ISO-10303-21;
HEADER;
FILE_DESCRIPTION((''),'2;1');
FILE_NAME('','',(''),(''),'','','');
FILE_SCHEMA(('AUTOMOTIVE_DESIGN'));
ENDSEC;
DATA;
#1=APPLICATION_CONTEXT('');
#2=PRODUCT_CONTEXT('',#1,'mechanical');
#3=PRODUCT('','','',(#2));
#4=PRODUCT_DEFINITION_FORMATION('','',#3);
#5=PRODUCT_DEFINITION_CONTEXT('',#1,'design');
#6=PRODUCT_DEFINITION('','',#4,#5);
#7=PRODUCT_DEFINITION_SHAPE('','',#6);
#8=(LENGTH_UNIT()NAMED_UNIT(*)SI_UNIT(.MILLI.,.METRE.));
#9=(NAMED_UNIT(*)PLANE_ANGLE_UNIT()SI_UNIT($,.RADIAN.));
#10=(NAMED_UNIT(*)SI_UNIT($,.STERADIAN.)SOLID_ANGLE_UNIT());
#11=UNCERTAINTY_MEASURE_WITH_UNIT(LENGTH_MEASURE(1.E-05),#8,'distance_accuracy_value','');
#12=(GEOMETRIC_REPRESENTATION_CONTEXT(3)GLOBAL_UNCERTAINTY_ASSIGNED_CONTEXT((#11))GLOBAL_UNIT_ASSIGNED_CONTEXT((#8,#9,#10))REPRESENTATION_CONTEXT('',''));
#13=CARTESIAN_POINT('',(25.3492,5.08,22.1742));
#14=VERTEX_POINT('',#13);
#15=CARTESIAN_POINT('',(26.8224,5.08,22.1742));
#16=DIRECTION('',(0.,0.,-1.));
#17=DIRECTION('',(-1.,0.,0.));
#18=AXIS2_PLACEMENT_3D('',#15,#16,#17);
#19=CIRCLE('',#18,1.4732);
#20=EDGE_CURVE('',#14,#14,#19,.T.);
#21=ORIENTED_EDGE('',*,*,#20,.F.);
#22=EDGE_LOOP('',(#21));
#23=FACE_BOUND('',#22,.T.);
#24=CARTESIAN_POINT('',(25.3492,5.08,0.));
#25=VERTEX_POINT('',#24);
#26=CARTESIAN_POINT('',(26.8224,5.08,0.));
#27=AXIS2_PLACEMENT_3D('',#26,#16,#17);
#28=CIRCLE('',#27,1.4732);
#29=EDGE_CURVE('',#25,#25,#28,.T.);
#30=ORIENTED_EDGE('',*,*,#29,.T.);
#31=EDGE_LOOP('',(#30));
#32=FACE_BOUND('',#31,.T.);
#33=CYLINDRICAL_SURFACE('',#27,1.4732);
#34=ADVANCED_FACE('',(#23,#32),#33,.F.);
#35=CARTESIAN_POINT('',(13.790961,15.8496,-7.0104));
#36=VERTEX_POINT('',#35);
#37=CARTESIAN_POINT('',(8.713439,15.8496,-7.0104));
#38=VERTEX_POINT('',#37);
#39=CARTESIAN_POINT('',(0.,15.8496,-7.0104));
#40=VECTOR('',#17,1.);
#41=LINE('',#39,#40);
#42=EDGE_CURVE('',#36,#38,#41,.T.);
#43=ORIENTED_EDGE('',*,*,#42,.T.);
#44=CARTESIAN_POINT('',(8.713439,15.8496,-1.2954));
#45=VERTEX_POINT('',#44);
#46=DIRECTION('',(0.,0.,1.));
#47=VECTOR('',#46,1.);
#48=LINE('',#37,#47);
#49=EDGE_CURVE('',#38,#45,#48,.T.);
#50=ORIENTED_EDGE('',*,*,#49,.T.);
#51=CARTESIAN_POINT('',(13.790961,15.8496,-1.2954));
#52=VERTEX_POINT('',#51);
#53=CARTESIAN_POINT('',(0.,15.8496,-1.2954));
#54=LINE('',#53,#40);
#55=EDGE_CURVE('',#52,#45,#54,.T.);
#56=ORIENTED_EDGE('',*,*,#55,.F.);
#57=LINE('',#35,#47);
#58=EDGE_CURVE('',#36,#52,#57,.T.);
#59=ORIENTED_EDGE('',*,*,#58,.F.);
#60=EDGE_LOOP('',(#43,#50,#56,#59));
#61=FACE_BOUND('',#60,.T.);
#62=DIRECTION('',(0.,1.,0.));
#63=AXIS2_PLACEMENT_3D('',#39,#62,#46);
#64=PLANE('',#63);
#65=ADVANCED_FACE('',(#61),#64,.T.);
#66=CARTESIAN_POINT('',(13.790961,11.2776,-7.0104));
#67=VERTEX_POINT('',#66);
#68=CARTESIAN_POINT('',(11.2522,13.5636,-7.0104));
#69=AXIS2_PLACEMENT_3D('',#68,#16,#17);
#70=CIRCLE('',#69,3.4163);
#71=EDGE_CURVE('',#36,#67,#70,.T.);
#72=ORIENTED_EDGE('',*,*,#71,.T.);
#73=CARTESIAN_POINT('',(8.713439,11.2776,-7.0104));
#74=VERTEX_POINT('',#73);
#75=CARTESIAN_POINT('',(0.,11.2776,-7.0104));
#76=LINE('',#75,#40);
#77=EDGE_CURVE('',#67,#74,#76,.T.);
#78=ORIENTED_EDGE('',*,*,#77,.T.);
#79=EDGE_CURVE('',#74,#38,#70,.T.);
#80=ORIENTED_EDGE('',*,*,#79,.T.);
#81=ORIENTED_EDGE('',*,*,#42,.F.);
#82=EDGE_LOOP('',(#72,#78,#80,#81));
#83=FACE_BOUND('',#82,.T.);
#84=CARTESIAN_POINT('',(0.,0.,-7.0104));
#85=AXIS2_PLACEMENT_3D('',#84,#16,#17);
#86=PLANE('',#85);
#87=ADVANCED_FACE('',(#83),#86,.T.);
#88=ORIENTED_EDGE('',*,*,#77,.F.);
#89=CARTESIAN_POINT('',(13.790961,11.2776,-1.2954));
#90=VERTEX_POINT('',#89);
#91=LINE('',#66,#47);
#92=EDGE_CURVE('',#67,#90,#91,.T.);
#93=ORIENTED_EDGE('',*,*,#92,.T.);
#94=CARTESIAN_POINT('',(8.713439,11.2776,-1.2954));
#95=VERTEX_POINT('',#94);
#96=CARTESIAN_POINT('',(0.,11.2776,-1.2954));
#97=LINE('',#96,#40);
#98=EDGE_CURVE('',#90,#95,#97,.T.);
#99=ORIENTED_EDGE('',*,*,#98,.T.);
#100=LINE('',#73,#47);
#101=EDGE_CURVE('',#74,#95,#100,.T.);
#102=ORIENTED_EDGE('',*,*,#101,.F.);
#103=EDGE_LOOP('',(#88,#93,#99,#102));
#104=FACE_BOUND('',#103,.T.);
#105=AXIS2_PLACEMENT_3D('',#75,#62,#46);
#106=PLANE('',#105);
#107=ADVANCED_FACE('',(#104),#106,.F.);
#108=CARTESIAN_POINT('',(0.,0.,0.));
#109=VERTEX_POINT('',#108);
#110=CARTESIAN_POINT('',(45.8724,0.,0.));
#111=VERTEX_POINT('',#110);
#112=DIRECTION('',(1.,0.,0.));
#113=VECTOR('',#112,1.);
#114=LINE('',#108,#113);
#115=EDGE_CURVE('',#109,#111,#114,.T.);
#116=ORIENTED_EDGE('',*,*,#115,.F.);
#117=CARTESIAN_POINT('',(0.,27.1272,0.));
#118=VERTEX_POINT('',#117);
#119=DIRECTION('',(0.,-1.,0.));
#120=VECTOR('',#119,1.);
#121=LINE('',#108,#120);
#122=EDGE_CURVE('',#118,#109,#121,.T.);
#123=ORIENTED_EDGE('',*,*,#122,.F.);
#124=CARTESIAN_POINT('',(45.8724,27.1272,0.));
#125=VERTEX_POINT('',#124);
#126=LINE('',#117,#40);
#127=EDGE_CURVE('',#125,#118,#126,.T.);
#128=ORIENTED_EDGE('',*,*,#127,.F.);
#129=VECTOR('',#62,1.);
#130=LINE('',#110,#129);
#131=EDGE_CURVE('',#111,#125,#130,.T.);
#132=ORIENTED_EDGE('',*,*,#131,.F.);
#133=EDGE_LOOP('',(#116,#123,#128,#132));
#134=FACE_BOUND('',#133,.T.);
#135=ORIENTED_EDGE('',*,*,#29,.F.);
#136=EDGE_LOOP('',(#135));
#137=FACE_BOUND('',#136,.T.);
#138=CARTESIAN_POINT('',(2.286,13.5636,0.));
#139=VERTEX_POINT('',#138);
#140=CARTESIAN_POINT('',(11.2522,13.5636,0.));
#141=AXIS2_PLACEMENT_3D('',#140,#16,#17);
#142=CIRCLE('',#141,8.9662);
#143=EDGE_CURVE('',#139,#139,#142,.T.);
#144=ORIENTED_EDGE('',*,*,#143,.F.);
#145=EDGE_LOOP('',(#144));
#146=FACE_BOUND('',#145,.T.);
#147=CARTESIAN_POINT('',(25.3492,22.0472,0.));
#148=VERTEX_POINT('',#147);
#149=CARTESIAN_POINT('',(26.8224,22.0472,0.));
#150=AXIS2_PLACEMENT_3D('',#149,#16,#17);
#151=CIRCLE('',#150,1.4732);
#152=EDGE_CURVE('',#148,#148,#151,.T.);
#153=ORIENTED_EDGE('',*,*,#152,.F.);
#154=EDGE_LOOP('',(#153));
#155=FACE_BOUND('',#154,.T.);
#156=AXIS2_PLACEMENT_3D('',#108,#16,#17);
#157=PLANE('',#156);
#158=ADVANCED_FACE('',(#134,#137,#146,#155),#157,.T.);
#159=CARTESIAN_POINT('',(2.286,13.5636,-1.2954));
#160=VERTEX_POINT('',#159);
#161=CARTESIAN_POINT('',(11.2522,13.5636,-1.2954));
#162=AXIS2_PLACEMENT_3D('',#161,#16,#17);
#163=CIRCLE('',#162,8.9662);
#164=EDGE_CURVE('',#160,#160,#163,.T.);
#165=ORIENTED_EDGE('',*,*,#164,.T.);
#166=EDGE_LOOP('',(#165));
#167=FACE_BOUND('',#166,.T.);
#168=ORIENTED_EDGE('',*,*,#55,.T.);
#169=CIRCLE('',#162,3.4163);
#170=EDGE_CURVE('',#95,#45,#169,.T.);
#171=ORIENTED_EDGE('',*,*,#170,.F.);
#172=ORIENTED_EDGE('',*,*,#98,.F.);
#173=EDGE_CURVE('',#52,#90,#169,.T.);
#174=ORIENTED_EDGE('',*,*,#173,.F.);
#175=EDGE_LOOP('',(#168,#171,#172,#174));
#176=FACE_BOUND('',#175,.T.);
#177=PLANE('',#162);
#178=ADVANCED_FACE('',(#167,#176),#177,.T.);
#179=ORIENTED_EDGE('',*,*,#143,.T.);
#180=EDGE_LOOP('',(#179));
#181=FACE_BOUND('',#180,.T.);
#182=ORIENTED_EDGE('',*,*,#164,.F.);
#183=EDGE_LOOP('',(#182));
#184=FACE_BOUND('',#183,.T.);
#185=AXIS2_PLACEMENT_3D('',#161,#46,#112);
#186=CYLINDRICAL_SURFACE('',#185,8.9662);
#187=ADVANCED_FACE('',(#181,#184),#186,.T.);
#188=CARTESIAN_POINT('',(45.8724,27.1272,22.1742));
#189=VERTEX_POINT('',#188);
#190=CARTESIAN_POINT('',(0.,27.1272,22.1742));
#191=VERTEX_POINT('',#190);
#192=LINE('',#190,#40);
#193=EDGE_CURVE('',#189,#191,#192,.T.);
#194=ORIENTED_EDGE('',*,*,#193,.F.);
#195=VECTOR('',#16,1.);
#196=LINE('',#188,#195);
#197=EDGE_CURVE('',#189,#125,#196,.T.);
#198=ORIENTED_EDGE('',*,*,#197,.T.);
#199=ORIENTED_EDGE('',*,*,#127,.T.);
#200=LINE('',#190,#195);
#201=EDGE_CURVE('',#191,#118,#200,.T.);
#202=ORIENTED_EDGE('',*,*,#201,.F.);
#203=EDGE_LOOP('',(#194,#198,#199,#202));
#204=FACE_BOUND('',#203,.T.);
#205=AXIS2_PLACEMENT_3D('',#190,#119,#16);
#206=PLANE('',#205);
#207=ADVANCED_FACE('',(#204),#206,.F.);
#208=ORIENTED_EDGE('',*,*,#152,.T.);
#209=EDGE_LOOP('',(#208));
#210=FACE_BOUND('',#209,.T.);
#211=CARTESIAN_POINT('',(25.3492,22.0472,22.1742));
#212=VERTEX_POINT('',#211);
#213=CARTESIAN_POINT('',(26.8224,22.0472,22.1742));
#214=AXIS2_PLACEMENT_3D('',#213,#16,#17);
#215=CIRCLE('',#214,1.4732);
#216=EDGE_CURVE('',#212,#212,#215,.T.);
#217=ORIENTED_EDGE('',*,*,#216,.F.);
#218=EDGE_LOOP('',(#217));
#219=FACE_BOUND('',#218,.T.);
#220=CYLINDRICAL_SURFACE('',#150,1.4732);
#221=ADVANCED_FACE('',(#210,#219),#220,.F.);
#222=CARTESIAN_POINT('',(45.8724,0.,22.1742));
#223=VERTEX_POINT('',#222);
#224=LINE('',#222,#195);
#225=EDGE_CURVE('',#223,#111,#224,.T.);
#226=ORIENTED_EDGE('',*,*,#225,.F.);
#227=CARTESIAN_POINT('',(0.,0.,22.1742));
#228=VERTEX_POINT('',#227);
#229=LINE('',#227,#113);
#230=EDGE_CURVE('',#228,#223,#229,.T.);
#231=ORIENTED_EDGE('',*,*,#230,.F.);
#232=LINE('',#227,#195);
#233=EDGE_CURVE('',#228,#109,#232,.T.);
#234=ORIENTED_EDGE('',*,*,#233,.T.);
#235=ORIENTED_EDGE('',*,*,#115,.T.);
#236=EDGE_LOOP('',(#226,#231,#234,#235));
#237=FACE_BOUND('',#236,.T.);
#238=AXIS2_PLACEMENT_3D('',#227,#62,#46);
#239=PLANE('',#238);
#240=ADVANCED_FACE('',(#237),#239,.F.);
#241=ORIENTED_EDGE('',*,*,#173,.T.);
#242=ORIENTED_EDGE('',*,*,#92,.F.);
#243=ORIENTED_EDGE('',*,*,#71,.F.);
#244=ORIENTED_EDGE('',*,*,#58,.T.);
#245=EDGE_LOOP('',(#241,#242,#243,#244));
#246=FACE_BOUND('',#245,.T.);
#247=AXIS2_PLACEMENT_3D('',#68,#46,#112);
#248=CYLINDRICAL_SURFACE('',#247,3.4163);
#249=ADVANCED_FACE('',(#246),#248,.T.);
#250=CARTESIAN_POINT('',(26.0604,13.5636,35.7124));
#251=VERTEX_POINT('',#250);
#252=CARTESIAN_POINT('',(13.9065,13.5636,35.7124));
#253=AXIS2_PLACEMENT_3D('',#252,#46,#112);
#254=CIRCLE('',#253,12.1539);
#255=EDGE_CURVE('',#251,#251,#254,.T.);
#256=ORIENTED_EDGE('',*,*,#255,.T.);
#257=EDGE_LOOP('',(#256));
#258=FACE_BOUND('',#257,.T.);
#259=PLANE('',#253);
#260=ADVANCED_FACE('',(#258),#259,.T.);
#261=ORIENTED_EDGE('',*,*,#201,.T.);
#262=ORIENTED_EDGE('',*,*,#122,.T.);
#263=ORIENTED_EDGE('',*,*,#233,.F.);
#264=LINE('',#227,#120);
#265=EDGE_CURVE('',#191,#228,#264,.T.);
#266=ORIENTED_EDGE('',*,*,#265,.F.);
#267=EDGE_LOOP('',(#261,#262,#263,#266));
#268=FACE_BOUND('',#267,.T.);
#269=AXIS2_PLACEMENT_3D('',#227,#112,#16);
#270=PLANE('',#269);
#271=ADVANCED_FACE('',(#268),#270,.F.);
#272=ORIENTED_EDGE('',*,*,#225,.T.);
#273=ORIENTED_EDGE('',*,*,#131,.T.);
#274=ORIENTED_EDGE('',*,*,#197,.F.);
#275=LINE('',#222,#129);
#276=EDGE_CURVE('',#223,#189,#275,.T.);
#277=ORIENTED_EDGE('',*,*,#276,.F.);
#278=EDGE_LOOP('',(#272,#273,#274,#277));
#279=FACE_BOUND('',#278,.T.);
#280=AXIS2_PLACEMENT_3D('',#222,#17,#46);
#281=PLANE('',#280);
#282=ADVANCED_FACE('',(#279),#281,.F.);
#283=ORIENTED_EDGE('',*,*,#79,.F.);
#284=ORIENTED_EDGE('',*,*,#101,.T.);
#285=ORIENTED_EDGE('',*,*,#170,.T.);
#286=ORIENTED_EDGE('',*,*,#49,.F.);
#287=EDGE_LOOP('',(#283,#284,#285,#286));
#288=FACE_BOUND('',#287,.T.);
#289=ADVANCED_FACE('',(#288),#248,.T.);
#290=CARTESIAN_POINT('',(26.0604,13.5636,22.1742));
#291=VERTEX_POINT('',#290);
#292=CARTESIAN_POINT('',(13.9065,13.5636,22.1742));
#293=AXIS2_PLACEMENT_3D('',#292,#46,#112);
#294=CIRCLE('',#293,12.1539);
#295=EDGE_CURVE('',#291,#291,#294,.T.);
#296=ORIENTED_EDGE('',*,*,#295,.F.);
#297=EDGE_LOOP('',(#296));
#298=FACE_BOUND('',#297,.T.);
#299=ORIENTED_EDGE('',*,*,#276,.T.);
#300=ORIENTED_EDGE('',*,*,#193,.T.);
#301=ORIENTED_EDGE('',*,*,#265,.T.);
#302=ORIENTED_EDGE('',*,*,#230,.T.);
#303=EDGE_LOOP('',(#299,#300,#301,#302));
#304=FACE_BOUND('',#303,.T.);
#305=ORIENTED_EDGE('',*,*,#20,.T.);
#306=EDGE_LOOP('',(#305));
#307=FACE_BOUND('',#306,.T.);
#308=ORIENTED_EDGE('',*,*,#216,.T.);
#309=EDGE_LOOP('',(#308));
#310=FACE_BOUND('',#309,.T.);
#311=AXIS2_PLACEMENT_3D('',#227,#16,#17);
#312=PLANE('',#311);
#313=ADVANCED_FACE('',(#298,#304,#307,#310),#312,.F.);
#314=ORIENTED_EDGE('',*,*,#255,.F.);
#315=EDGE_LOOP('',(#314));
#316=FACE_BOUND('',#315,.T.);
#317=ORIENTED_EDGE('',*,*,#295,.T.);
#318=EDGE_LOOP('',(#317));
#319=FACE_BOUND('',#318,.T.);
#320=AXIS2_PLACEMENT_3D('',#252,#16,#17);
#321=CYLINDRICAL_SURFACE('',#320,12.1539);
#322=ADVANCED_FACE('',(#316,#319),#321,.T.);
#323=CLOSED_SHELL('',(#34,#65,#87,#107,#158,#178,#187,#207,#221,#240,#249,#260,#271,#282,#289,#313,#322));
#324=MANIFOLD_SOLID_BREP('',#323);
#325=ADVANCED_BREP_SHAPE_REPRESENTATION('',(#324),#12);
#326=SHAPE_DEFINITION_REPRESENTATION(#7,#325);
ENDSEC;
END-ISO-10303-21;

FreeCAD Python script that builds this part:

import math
import FreeCAD as App
import Part
import Sketcher
from FreeCAD import Vector
Q = App.Units.Quantity

doc = App.newDocument("Part")
body = doc.addObject("PartDesign::Body", "Body")

sketch1 = doc.addObject("Sketcher::SketchObject", "Sketch")
body.addObject(sketch1)
sketch1.AttachmentSupport = (doc.XY_Plane, [""])
sketch1.MapMode = "FlatFace"
sketch1.addGeometry([
    Part.LineSegment(Vector(0, 27.1272, 0), Vector(0, 0, 0)),
    Part.LineSegment(Vector(0, 0, 0), Vector(45.8724, 0, 0)),
    Part.LineSegment(Vector(45.8724, 0, 0), Vector(45.8724, 27.1272, 0)),
    Part.LineSegment(Vector(45.8724, 27.1272, 0), Vector(0, 27.1272, 0)),
], False)
sketch1.addConstraint([
    Sketcher.Constraint("Coincident", 0, 2, 1, 1),
    Sketcher.Constraint("Coincident", 1, 2, 2, 1),
    Sketcher.Constraint("Coincident", 2, 2, 3, 1),
    Sketcher.Constraint("Coincident", 3, 2, 0, 1),
    Sketcher.Constraint("Vertical", 0),
    Sketcher.Constraint("Horizontal", 1),
    Sketcher.Constraint("Vertical", 2),
    Sketcher.Constraint("Horizontal", 3),
    Sketcher.Constraint("Coincident", 0, 2, -1, 1),
    Sketcher.Constraint("DistanceX", 1, 1, 1, 2, Q("1.806 in")),
    Sketcher.Constraint("DistanceY", 0, 2, 0, 1, Q("1.068 in")),
])
pad1 = doc.addObject("PartDesign::Pad", "Pad")
body.addObject(pad1)
pad1.Profile = sketch1
pad1.Length = Q("0.873 in")

sketch2 = doc.addObject("Sketcher::SketchObject", "Sketch001")
body.addObject(sketch2)
sketch2.AttachmentSupport = (doc.XY_Plane, [""])
sketch2.MapMode = "FlatFace"
sketch2.AttachmentOffset = App.Placement(Vector(0, 0, 0.873 * 25.4), App.Rotation())
sketch2.addGeometry(Part.Circle(Vector(13.9065, 13.5636, 0), Vector(0, 0, 1), 12.1539), False)
sketch2.addConstraint([
    Sketcher.Constraint("Diameter", 0, Q("0.957 in")),
    Sketcher.Constraint("DistanceY", -1, 1, 0, 3, Q("0.534 in")),
    Sketcher.Constraint("DistanceX", -1, 1, 0, 3, Q("0.5475 in")),
])
pad2 = doc.addObject("PartDesign::Pad", "Pad001")
body.addObject(pad2)
pad2.Profile = sketch2
pad2.Length = Q("0.533 in")

sketch3 = doc.addObject("Sketcher::SketchObject", "Sketch002")
body.addObject(sketch3)
sketch3.AttachmentSupport = (doc.XY_Plane, [""])
sketch3.MapMode = "FlatFace"
sketch3.addGeometry(Part.Circle(Vector(11.2522, 13.5636, 0), Vector(0, 0, 1), 8.9662), False)
sketch3.addConstraint([
    Sketcher.Constraint("Diameter", 0, Q("0.706 in")),
    Sketcher.Constraint("DistanceX", -1, 1, 0, 3, Q("0.443 in")),
    Sketcher.Constraint("DistanceY", -1, 1, 0, 3, Q("0.534 in")),
])
pad3 = doc.addObject("PartDesign::Pad", "Pad002")
body.addObject(pad3)
pad3.Profile = sketch3
pad3.Length = Q("0.051 in")
pad3.Reversed = True

sketch4 = doc.addObject("Sketcher::SketchObject", "Sketch003")
body.addObject(sketch4)
sketch4.AttachmentSupport = (doc.XY_Plane, [""])
sketch4.MapMode = "FlatFace"
sketch4.AttachmentOffset = App.Placement(Vector(0, 0, -0.051 * 25.4), App.Rotation())
sketch4.addGeometry([
    Part.LineSegment(Vector(8.713439, 15.8496, 0), Vector(13.790961, 15.8496, 0)),
    Part.ArcOfCircle(Part.Circle(Vector(11.2522, 13.5636, 0), Vector(0, 0, 1), 3.4163), math.radians(-42.001108), math.radians(42.001108)),
    Part.LineSegment(Vector(13.790961, 11.2776, 0), Vector(8.713439, 11.2776, 0)),
    Part.ArcOfCircle(Part.Circle(Vector(11.2522, 13.5636, 0), Vector(0, 0, 1), 3.4163), math.radians(180), math.radians(222.001108)),
    Part.ArcOfCircle(Part.Circle(Vector(11.2522, 13.5636, 0), Vector(0, 0, 1), 3.4163), math.radians(137.998892), math.radians(180)),
], False)
sketch4.addConstraint([
    Sketcher.Constraint("Coincident", 0, 2, 1, 2),
    Sketcher.Constraint("Coincident", 1, 1, 2, 1),
    Sketcher.Constraint("Coincident", 2, 2, 3, 2),
    Sketcher.Constraint("Tangent", 3, 1, 4, 2),
    Sketcher.Constraint("Coincident", 4, 1, 0, 1),
    Sketcher.Constraint("Horizontal", 0),
    Sketcher.Constraint("Horizontal", 2),
    Sketcher.Constraint("Coincident", 3, 3, 1, 3),
    Sketcher.Constraint("Equal", 1, 3),
    Sketcher.Constraint("Equal", 3, 4),
    Sketcher.Constraint("Horizontal", 4, 3, 3, 1),
    Sketcher.Constraint("Vertical", 0, 2, 1, 1),
    Sketcher.Constraint("Radius", 1, Q("0.1345 in")),
    Sketcher.Constraint("DistanceY", 1, 3, 0, 2, Q("0.09 in")),
    Sketcher.Constraint("DistanceX", -1, 1, 1, 3, Q("0.443 in")),
    Sketcher.Constraint("DistanceY", -1, 1, 1, 3, Q("0.534 in")),
])
pad4 = doc.addObject("PartDesign::Pad", "Pad003")
body.addObject(pad4)
pad4.Profile = sketch4
pad4.Length = Q("0.225 in")
pad4.Reversed = True

sketch5 = doc.addObject("Sketcher::SketchObject", "Sketch004")
body.addObject(sketch5)
sketch5.AttachmentSupport = (doc.XY_Plane, [""])
sketch5.MapMode = "FlatFace"
sketch5.addGeometry([
    Part.Circle(Vector(26.8224, 22.0472, 0), Vector(0, 0, 1), 1.4732),
    Part.Circle(Vector(26.8224, 5.08, 0), Vector(0, 0, 1), 1.4732),
], False)
sketch5.addConstraint([
    Sketcher.Constraint("Equal", 0, 1),
    Sketcher.Constraint("Vertical", 0, 3, 1, 3),
    Sketcher.Constraint("Diameter", 0, Q("0.116 in")),
    Sketcher.Constraint("DistanceY", -1, 1, 1, 3, Q("0.2 in")),
    Sketcher.Constraint("DistanceX", -1, 1, 0, 3, Q("1.056 in")),
    Sketcher.Constraint("DistanceY", -1, 1, 0, 3, Q("0.868 in")),
])
doc.recompute()
hole = doc.addObject("PartDesign::Hole", "Hole")
body.addObject(hole)
hole.Profile = sketch5
hole.ThreadType = "None"
hole.Diameter = Q("0.116 in")
hole.DepthType = "ThroughAll"
hole.Reversed = True

doc.recompute()
